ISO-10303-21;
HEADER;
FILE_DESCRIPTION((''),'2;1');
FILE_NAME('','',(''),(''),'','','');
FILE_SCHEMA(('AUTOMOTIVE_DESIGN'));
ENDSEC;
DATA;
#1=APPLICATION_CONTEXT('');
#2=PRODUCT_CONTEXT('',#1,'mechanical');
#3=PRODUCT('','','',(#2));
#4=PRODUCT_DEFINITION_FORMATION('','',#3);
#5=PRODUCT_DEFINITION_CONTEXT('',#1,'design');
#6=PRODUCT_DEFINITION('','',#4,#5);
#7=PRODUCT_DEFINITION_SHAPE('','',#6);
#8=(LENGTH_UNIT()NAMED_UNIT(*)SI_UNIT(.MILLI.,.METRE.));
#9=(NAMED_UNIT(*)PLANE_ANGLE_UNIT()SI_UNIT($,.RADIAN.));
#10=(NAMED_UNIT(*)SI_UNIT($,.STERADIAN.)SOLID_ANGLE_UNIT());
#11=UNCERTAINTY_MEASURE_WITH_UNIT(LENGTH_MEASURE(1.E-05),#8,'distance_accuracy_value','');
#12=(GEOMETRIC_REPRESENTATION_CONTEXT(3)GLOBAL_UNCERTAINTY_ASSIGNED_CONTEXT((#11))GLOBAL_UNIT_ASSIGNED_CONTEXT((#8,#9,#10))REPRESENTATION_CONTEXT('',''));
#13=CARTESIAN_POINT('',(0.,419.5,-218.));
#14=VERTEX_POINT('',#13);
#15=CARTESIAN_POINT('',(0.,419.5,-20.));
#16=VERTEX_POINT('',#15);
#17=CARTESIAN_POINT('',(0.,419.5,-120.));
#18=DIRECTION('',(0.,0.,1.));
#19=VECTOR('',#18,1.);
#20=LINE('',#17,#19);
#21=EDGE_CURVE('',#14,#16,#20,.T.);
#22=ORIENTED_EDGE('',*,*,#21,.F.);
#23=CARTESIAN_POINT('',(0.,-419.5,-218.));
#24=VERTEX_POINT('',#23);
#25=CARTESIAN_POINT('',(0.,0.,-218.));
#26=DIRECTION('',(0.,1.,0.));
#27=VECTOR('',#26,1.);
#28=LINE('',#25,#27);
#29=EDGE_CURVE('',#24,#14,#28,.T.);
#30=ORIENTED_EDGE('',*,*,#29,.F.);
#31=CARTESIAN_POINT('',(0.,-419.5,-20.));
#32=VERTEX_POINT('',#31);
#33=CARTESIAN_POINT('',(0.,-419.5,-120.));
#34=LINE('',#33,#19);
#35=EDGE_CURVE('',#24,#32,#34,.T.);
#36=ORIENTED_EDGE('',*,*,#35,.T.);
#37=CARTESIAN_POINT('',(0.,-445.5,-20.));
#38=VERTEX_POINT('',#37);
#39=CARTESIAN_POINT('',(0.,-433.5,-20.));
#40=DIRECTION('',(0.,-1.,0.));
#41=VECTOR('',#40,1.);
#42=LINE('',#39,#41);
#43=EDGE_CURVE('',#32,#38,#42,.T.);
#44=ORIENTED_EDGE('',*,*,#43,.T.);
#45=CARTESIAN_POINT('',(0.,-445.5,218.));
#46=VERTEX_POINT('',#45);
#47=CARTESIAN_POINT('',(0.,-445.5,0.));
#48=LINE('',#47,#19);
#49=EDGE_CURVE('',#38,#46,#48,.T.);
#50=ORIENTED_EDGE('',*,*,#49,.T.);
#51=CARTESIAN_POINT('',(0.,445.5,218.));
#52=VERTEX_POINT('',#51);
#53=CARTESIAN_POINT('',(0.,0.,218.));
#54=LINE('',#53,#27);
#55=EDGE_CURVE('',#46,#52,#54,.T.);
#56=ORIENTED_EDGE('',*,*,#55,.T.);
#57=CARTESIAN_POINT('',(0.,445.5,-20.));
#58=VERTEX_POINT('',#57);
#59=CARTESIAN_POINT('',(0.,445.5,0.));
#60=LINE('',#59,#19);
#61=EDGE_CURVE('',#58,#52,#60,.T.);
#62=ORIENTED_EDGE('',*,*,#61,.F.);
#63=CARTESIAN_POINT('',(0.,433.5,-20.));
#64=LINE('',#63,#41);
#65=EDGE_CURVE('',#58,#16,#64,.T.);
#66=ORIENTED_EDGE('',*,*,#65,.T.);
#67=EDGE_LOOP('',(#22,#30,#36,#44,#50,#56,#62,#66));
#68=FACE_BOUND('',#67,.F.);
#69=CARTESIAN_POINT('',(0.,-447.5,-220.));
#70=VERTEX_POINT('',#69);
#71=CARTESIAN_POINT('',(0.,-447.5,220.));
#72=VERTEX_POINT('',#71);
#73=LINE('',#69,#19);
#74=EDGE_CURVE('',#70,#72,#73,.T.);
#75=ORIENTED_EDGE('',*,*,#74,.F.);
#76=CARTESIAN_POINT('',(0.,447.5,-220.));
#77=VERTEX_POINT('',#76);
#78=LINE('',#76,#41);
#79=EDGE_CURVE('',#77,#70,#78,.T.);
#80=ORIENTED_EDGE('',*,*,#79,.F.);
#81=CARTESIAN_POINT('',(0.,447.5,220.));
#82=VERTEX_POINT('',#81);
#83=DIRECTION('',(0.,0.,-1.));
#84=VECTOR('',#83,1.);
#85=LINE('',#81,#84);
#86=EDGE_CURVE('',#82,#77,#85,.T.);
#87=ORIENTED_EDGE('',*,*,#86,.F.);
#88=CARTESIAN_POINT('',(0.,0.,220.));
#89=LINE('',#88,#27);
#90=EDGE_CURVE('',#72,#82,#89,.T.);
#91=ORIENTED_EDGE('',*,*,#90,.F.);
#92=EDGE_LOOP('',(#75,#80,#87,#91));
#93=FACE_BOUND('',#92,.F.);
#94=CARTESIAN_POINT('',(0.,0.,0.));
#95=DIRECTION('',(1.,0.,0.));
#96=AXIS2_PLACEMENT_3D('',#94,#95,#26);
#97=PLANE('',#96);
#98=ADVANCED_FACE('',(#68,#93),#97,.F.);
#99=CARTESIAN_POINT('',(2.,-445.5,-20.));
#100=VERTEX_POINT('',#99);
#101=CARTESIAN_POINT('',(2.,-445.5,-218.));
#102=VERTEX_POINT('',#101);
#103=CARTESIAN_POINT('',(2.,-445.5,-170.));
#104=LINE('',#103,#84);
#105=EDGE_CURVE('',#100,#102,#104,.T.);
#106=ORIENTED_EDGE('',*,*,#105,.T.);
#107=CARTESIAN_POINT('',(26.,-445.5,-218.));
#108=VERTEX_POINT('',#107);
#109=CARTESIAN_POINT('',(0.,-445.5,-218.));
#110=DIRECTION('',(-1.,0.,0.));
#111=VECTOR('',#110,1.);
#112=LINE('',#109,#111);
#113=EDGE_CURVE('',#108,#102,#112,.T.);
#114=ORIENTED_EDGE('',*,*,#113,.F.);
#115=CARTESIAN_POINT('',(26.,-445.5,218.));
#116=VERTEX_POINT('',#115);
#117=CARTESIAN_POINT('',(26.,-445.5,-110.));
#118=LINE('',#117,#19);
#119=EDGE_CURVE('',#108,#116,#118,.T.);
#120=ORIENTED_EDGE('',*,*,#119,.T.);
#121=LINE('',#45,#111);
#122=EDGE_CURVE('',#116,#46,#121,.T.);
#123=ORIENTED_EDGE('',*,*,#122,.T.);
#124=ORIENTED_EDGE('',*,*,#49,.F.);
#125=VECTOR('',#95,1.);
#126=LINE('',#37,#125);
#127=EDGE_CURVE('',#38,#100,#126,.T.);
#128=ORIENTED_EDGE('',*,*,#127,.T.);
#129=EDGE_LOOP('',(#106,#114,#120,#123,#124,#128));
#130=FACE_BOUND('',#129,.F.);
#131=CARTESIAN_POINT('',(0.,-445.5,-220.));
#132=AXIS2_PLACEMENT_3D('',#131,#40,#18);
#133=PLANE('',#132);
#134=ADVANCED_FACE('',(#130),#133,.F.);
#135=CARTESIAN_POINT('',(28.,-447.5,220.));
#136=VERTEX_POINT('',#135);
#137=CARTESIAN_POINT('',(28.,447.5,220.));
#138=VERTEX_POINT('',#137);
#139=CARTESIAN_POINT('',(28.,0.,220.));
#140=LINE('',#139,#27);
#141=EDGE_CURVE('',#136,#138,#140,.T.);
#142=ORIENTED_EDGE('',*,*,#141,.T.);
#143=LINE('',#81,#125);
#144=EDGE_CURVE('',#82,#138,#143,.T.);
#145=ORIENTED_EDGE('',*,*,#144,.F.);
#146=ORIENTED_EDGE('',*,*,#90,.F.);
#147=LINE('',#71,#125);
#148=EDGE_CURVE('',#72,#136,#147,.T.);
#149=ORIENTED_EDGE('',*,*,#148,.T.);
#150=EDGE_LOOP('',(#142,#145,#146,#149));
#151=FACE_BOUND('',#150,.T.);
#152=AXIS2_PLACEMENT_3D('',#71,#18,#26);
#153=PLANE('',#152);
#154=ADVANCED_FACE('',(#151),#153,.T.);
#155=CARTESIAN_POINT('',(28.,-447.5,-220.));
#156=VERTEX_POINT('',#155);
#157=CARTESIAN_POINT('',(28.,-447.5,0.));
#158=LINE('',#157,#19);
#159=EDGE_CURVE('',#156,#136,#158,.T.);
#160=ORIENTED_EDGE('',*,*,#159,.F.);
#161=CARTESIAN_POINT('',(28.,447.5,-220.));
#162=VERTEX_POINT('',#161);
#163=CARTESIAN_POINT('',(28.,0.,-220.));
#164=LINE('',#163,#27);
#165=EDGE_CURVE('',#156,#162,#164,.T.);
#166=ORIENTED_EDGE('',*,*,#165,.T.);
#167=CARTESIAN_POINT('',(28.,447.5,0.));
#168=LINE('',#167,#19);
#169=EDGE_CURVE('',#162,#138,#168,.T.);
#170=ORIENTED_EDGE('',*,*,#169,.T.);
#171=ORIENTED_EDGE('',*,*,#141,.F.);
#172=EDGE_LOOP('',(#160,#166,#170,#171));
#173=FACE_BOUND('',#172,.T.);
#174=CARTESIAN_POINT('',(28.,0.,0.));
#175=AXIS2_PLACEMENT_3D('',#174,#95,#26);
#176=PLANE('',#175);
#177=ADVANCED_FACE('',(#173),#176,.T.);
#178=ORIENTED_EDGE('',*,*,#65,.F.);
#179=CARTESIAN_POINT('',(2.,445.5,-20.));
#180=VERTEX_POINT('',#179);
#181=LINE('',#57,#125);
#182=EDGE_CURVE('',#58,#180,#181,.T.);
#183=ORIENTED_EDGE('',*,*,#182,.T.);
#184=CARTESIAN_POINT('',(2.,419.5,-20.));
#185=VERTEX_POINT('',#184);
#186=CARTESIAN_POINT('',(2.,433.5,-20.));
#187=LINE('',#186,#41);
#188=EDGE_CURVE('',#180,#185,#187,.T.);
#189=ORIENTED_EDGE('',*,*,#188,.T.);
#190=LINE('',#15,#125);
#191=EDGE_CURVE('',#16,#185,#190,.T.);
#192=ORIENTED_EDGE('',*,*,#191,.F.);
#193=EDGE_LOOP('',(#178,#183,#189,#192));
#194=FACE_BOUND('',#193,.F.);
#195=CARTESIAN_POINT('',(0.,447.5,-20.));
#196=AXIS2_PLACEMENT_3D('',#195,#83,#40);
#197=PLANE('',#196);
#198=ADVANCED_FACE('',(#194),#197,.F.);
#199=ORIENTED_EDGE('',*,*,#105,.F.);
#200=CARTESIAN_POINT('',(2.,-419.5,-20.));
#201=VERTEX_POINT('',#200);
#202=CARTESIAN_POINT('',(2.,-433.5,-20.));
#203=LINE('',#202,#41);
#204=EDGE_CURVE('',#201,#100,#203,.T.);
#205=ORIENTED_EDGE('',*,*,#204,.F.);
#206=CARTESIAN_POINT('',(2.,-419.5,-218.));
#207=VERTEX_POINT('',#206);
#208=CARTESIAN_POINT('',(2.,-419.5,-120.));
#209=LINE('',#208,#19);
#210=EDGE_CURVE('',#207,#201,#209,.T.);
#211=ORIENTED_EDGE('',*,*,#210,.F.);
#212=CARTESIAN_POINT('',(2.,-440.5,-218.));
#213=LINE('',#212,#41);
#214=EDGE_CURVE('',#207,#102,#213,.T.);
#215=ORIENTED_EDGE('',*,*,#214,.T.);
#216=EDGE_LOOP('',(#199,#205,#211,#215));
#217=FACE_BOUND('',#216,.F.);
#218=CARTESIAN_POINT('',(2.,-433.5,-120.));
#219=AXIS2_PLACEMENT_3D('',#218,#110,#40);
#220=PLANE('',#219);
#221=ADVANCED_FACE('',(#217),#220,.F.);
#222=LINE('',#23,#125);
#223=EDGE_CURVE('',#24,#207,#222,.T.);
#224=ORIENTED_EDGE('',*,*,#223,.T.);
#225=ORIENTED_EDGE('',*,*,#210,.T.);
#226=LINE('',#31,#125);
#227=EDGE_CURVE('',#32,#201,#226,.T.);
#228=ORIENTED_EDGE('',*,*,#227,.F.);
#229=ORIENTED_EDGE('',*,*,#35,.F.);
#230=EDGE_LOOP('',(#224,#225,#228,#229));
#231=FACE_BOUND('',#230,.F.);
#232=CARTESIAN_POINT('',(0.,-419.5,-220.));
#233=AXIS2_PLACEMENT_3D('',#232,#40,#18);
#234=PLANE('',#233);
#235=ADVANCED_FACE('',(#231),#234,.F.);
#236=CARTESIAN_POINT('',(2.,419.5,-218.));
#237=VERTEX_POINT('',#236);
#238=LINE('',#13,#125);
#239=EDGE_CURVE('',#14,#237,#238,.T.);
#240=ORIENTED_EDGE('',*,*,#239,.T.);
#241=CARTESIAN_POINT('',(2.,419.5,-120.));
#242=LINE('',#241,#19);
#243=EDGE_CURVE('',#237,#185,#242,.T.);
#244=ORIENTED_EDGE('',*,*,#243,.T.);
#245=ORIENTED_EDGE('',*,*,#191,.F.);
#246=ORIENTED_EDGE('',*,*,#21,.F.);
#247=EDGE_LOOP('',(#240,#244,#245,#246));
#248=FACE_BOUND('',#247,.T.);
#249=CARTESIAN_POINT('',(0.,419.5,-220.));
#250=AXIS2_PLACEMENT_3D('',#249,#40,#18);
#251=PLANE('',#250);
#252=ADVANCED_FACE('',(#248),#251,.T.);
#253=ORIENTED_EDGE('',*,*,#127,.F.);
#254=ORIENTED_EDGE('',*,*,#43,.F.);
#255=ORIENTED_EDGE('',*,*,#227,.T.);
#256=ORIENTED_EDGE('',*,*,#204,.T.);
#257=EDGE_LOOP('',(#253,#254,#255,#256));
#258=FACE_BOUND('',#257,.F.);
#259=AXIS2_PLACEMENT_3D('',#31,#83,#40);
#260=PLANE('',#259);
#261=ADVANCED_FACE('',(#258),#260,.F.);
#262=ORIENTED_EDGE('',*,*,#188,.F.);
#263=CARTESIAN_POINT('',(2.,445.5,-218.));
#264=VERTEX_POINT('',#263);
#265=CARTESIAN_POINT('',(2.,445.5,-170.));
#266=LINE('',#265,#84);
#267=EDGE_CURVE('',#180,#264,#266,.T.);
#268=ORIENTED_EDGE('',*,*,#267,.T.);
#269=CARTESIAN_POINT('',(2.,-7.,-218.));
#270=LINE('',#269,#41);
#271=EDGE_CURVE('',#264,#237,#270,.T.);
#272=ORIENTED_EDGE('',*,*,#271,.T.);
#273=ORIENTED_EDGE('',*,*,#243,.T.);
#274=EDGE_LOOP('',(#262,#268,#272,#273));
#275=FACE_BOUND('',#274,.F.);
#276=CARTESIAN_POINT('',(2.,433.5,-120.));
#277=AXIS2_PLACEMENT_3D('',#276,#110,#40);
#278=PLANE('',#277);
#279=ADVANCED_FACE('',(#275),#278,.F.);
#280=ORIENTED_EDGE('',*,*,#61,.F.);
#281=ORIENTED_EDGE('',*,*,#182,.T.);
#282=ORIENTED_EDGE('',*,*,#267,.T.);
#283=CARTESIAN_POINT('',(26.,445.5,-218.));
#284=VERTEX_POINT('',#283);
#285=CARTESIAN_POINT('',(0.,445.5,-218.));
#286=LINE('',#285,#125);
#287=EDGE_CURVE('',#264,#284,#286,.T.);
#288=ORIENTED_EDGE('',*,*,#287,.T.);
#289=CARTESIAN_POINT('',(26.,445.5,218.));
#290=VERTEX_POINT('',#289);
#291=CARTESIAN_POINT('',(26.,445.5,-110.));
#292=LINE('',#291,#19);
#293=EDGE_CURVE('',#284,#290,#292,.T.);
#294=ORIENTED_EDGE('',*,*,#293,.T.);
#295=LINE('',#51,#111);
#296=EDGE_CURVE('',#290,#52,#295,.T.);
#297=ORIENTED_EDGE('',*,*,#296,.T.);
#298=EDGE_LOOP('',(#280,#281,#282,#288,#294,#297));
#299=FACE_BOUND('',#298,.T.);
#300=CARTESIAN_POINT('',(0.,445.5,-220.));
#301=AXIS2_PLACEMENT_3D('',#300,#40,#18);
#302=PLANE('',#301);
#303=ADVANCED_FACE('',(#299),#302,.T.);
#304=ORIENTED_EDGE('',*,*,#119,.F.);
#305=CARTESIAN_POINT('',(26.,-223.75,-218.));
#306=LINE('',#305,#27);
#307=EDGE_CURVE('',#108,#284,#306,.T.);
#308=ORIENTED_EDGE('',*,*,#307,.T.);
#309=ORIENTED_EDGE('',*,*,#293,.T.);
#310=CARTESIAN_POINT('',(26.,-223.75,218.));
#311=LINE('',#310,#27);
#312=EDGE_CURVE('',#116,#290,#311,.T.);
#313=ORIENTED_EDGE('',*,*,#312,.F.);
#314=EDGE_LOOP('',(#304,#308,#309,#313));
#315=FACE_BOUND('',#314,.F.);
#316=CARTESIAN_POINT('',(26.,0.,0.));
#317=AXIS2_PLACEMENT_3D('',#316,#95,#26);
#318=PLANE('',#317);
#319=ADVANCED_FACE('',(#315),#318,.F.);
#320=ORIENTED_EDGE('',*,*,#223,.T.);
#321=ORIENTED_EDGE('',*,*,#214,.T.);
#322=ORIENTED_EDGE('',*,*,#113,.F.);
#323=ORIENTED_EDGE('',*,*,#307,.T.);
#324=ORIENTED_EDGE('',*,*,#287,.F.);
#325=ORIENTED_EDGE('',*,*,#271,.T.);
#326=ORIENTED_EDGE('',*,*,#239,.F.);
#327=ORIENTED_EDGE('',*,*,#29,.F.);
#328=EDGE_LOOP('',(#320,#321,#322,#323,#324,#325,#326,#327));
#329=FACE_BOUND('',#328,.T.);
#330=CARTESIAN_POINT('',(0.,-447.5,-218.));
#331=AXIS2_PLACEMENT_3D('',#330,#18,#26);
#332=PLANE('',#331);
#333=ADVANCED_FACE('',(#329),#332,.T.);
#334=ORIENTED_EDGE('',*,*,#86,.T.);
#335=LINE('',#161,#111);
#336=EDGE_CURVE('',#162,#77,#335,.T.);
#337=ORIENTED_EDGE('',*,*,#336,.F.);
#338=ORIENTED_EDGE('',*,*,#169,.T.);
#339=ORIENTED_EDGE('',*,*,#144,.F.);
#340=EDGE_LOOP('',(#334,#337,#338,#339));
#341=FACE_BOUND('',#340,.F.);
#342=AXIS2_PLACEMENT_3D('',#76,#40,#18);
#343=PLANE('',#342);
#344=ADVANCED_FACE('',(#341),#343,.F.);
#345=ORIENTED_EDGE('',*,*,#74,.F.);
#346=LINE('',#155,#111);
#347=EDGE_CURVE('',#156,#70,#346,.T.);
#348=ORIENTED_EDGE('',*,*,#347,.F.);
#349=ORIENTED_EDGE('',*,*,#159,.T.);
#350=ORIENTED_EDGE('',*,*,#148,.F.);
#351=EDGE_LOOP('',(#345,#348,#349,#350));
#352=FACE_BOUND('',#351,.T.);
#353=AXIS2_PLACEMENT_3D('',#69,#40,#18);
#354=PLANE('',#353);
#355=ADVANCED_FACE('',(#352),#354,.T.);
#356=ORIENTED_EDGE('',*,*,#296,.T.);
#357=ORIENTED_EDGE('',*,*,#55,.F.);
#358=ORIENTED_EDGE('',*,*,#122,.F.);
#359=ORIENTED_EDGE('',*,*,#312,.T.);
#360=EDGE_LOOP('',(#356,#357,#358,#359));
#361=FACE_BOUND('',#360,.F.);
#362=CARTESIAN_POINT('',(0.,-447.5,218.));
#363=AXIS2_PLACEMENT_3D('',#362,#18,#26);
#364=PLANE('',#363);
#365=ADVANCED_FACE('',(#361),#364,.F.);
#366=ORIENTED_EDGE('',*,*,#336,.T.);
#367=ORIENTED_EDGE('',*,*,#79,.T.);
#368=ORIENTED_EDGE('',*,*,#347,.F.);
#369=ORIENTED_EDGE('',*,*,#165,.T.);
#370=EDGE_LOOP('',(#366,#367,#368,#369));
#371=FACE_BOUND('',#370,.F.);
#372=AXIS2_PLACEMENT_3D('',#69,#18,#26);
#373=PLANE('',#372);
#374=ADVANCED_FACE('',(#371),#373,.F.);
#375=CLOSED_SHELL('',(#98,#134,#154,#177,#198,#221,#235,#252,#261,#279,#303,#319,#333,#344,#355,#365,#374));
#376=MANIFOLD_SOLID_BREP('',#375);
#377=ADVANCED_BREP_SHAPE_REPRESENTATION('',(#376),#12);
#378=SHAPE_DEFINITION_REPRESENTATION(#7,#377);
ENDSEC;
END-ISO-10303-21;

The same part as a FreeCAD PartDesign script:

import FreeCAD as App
import Part
import Sketcher

V = App.Vector


def faces_at(feature, points):
    """Names of the faces that lie closest to the given points."""
    faces = feature.Shape.Faces
    near = lambda p: min(range(len(faces)), key=lambda i: faces[i].distToShape(Part.Vertex(*p))[0])
    return sorted({f"Face{near(p) + 1}" for p in points})


def add_polygon(sketch, points):
    """Adds a closed chain of lines whose ends are joined by coincident constraints."""
    first, n = sketch.GeometryCount, len(points)
    for a, b in zip(points, points[1:] + points[:1]):
        sketch.addGeometry(Part.LineSegment(App.Vector(*a, 0), App.Vector(*b, 0)), False)
    for i in range(n):
        sketch.addConstraint(Sketcher.Constraint("Coincident", first + i, 2, first + (i + 1) % n, 1))

doc = App.newDocument("Part")
params = doc.addObject("Spreadsheet::Sheet", "Params")
for row, (alias, value) in enumerate([
    ("sketch1_width", "895 mm"),
    ("sketch1_height", "440 mm"),
    ("pad1_length", "28 mm"),
    ("thickness_wall", "2 mm"),
    ("sketch2_width", "28 mm"),
    ("sketch2_height", "200 mm"),
    ("pad2_length", "2 mm"),
], start=1):
    params.set(f"A{row}", alias)
    params.set(f"B{row}", "=" + value)
    params.setAlias(f"B{row}", alias)

body = doc.addObject("PartDesign::Body", "Body")

sketch1 = body.newObject("Sketcher::SketchObject", "Sketch")
sketch1.AttachmentSupport = (doc.getObject("YZ_Plane"), [""])
sketch1.MapMode = "FlatFace"
add_polygon(sketch1, [(-447.5, 220), (-447.5, -220), (447.5, -220), (447.5, 220)])
sketch1.addConstraint([
    Sketcher.Constraint("Vertical", 0),
    Sketcher.Constraint("Horizontal", 1),
    Sketcher.Constraint("Vertical", 2),
    Sketcher.Constraint("Horizontal", 3),
    Sketcher.Constraint("Symmetric", 0, 2, 2, 2, -1, 1),
    Sketcher.Constraint("DistanceX", 1, 1, 1, 2, 895.0),
    Sketcher.Constraint("DistanceY", 0, 2, 0, 1, 440.0),
])
sketch1.setExpression("Constraints[9]", "Params.sketch1_width")
sketch1.setExpression("Constraints[10]", "Params.sketch1_height")
pad1 = body.newObject("PartDesign::Pad", "Pad")
pad1.Profile = sketch1
pad1.setExpression("Length", "Params.pad1_length")
doc.recompute()

thickness = body.newObject("PartDesign::Thickness", "Thickness")
thickness.Base = (pad1, faces_at(pad1, [(0, 0, 0)]))
thickness.setExpression("Value", "Params.thickness_wall")
thickness.Reversed = True
thickness.Join = "Arc"

sketch2 = body.newObject("Sketcher::SketchObject", "Sketch001")
sketch2.AttachmentSupport = (doc.getObject("YZ_Plane"), [""])
sketch2.MapMode = "FlatFace"
add_polygon(sketch2, [(447.5, -20), (447.5, -220), (419.5, -220), (419.5, -20)])
add_polygon(sketch2, [(-419.5, -20), (-419.5, -220), (-447.5, -220), (-447.5, -20)])
sketch2.addConstraint([
    Sketcher.Constraint("Vertical", 0),
    Sketcher.Constraint("Horizontal", 1),
    Sketcher.Constraint("Vertical", 2),
    Sketcher.Constraint("Horizontal", 3),
    Sketcher.Constraint("Vertical", 4),
    Sketcher.Constraint("Horizontal", 5),
    Sketcher.Constraint("Vertical", 6),
    Sketcher.Constraint("Horizontal", 7),
    Sketcher.Constraint("Symmetric", 1, 2, 4, 2, -2),
    Sketcher.Constraint("Symmetric", 3, 2, 6, 2, -2),
    Sketcher.Constraint("DistanceX", 1, 2, 1, 1, 28.0),
    Sketcher.Constraint("DistanceY", 0, 2, 0, 1, 200.0),
    Sketcher.Constraint("DistanceY", 0, 2, -1, 1, 220.0),
    Sketcher.Constraint("DistanceX", 4, 2, 1, 2, 839.0),
])
sketch2.setExpression("Constraints[18]", "Params.sketch2_width")
sketch2.setExpression("Constraints[19]", "Params.sketch2_height")
pad2 = body.newObject("PartDesign::Pad", "Pad001")
pad2.Profile = sketch2
pad2.setExpression("Length", "Params.pad2_length")

doc.recompute()
